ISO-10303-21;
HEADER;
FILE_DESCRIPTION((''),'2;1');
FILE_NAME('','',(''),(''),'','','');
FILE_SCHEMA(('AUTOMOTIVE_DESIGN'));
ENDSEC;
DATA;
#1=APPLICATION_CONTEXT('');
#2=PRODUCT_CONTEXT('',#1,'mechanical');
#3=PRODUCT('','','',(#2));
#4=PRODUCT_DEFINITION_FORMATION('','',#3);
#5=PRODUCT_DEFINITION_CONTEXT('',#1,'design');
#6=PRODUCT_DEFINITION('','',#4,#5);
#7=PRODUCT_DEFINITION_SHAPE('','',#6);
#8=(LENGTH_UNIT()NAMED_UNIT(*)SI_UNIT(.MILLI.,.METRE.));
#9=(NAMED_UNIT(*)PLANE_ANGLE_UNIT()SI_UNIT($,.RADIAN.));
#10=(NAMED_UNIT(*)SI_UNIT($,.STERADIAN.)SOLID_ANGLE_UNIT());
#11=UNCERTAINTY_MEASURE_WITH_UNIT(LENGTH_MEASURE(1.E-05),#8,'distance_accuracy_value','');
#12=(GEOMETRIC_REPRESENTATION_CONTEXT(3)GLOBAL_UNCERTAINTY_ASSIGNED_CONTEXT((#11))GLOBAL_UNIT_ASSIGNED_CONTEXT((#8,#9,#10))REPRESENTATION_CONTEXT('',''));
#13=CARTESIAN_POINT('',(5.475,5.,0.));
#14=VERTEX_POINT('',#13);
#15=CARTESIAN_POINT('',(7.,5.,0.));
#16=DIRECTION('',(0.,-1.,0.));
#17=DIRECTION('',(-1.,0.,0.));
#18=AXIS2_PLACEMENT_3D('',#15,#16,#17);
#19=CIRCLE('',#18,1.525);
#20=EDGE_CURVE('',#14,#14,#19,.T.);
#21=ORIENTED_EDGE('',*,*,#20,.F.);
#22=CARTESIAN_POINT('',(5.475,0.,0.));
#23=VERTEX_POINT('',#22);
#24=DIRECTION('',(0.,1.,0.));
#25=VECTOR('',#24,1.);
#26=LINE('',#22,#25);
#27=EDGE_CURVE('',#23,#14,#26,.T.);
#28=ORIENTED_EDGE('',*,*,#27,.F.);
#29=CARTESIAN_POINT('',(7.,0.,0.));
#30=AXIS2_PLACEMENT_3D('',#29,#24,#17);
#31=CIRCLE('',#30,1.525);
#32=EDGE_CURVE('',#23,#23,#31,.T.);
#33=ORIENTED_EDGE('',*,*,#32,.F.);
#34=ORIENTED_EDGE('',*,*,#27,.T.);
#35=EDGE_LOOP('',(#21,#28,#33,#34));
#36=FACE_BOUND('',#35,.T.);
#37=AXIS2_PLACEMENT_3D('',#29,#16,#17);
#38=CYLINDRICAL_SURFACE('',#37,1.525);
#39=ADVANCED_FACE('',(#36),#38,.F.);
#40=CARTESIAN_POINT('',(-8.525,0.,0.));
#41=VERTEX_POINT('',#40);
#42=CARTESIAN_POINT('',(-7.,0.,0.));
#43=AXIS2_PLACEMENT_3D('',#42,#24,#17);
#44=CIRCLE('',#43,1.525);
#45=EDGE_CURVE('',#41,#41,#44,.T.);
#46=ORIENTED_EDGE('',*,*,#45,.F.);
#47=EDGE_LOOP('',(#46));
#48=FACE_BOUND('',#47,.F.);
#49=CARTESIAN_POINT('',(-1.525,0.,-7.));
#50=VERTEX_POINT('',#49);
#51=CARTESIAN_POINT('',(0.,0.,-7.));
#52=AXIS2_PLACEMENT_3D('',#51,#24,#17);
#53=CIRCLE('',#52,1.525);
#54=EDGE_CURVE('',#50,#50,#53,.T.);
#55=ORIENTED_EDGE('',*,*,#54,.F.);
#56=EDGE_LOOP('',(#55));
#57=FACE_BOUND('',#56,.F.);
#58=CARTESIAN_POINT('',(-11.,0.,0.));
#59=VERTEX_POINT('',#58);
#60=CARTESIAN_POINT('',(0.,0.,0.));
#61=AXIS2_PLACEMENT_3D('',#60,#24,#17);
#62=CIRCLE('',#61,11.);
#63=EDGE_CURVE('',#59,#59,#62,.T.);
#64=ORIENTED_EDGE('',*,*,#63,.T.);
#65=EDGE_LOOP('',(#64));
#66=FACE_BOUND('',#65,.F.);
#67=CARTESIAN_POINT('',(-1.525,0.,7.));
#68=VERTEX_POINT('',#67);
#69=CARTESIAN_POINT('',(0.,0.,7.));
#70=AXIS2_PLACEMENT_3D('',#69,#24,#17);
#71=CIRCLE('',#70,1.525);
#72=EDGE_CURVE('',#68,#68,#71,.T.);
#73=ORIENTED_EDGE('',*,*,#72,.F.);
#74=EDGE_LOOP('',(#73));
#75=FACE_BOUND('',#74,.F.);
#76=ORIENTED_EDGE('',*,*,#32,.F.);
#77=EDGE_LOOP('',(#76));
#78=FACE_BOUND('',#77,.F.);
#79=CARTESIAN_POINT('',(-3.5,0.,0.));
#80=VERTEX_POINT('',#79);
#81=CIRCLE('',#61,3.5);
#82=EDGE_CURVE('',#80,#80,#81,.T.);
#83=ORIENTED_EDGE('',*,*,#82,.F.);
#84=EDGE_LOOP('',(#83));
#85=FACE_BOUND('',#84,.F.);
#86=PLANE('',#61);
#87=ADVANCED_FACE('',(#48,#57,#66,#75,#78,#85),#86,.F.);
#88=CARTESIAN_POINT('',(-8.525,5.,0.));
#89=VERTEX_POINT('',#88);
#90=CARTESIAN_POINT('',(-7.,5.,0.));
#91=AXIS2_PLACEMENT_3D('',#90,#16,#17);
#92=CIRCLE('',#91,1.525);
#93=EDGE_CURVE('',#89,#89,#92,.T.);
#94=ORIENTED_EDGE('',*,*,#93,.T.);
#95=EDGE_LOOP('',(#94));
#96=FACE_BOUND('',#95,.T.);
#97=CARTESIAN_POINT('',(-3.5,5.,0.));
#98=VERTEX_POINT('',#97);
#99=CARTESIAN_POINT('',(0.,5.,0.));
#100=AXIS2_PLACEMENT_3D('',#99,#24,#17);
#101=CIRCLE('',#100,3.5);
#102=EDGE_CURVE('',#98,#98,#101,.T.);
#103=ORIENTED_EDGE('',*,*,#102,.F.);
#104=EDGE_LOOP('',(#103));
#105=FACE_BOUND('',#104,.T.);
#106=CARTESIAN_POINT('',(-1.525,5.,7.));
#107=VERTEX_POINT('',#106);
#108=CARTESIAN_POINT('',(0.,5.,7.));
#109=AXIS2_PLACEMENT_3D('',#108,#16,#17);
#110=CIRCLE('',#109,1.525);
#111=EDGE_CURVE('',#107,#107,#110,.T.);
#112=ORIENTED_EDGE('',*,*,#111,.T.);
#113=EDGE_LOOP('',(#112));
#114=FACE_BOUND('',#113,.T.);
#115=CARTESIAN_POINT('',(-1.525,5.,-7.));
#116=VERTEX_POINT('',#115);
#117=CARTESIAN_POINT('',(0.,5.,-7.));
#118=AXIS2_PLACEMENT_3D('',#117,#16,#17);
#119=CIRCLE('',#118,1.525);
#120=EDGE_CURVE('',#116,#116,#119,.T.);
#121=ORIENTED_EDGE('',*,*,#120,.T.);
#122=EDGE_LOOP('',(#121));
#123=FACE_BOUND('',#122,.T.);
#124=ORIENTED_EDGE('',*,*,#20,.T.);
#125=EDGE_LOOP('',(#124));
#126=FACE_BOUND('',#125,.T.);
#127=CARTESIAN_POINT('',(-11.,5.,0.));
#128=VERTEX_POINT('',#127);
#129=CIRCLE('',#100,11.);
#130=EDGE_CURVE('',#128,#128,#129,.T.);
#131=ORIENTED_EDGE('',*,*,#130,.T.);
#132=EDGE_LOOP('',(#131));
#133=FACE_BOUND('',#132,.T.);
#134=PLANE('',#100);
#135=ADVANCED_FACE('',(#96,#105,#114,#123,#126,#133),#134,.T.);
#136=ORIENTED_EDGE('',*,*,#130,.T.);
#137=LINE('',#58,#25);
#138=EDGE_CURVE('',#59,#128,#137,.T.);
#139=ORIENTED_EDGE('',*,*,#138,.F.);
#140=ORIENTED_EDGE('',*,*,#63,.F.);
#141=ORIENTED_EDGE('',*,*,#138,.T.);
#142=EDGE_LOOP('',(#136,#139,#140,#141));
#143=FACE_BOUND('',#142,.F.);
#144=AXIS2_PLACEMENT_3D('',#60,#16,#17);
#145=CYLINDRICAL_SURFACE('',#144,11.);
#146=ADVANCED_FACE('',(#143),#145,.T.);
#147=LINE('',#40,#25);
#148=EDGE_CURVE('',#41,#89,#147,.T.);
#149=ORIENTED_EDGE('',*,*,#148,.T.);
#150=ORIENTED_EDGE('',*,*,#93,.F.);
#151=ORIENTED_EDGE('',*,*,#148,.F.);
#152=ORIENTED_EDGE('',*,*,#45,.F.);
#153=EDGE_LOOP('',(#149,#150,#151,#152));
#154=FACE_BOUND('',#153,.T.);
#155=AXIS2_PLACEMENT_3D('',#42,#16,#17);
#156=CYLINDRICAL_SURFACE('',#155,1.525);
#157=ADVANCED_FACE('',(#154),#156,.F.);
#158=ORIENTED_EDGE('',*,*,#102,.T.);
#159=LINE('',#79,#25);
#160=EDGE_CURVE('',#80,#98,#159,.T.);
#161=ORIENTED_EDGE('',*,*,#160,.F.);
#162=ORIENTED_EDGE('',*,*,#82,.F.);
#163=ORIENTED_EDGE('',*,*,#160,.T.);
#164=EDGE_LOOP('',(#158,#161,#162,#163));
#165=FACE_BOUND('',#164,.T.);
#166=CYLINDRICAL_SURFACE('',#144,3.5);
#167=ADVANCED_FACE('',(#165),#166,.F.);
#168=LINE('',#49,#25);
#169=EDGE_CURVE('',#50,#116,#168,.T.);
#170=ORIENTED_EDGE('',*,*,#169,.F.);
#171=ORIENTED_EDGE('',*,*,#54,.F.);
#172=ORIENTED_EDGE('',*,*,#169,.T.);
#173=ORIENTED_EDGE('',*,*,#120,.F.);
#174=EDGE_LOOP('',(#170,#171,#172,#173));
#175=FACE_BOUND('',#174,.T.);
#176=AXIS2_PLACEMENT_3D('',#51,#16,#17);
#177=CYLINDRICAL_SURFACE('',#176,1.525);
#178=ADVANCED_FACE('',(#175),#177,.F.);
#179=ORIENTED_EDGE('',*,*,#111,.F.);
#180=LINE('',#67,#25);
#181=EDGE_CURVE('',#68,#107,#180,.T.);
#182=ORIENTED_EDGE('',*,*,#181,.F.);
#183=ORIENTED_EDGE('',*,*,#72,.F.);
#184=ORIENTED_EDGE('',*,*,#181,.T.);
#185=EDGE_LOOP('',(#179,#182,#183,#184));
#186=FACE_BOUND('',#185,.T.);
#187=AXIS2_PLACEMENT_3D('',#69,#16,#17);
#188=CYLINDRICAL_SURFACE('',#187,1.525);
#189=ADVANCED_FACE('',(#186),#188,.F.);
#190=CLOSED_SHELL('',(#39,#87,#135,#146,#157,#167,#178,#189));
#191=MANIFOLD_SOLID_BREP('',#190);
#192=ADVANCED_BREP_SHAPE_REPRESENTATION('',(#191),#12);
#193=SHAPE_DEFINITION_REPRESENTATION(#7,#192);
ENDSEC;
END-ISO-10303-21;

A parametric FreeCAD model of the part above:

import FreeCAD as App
import Part
import Sketcher

V = App.Vector
Q = App.Units.Quantity

doc = App.newDocument("Part")
body = doc.addObject("PartDesign::Body", "Body")

sketch1 = doc.addObject("Sketcher::SketchObject", "Sketch")
body.addObject(sketch1)
sketch1.AttachmentSupport = (doc.XZ_Plane, [""])
sketch1.MapMode = "FlatFace"
sketch1.addGeometry([
    Part.Circle(V(0, 0, 0), V(0, 0, 1), 11),
    Part.Circle(V(0, 7, 0), V(0, 0, 1), 1.5),
    Part.Circle(V(7, 0, 0), V(0, 0, 1), 1.5),
    Part.Circle(V(0, -7, 0), V(0, 0, 1), 1.5),
    Part.Circle(V(-7, 0, 0), V(0, 0, 1), 1.5),
    Part.Circle(V(0, 0, 0), V(0, 0, 1), 3.5),
], False)
sketch1.addConstraint([
    Sketcher.Constraint("Coincident", 0, 3, -1, 1),
    Sketcher.Constraint("Coincident", 5, 3, -1, 1),
    Sketcher.Constraint("Equal", 1, 2),
    Sketcher.Constraint("Equal", 2, 3),
    Sketcher.Constraint("Equal", 3, 4),
    Sketcher.Constraint("Symmetric", 1, 3, 3, 3, -1, 1),
    Sketcher.Constraint("Symmetric", 2, 3, 4, 3, -1, 1),
    Sketcher.Constraint("PointOnObject", 1, 3, -2),
    Sketcher.Constraint("PointOnObject", 2, 3, -1),
    Sketcher.Constraint("Diameter", 0, Q("22 mm")),
    Sketcher.Constraint("Diameter", 5, Q("7 mm")),
    Sketcher.Constraint("Diameter", 1, Q("3.05 mm")),
    Sketcher.Constraint("DistanceY", -1, 1, 1, 3, Q("7 mm")),
    Sketcher.Constraint("DistanceX", -1, 1, 2, 3, Q("7 mm")),
])
pad1 = doc.addObject("PartDesign::Pad", "Pad")
body.addObject(pad1)
pad1.Profile = sketch1
pad1.Length = 5
pad1.Reversed = True

doc.recompute()
